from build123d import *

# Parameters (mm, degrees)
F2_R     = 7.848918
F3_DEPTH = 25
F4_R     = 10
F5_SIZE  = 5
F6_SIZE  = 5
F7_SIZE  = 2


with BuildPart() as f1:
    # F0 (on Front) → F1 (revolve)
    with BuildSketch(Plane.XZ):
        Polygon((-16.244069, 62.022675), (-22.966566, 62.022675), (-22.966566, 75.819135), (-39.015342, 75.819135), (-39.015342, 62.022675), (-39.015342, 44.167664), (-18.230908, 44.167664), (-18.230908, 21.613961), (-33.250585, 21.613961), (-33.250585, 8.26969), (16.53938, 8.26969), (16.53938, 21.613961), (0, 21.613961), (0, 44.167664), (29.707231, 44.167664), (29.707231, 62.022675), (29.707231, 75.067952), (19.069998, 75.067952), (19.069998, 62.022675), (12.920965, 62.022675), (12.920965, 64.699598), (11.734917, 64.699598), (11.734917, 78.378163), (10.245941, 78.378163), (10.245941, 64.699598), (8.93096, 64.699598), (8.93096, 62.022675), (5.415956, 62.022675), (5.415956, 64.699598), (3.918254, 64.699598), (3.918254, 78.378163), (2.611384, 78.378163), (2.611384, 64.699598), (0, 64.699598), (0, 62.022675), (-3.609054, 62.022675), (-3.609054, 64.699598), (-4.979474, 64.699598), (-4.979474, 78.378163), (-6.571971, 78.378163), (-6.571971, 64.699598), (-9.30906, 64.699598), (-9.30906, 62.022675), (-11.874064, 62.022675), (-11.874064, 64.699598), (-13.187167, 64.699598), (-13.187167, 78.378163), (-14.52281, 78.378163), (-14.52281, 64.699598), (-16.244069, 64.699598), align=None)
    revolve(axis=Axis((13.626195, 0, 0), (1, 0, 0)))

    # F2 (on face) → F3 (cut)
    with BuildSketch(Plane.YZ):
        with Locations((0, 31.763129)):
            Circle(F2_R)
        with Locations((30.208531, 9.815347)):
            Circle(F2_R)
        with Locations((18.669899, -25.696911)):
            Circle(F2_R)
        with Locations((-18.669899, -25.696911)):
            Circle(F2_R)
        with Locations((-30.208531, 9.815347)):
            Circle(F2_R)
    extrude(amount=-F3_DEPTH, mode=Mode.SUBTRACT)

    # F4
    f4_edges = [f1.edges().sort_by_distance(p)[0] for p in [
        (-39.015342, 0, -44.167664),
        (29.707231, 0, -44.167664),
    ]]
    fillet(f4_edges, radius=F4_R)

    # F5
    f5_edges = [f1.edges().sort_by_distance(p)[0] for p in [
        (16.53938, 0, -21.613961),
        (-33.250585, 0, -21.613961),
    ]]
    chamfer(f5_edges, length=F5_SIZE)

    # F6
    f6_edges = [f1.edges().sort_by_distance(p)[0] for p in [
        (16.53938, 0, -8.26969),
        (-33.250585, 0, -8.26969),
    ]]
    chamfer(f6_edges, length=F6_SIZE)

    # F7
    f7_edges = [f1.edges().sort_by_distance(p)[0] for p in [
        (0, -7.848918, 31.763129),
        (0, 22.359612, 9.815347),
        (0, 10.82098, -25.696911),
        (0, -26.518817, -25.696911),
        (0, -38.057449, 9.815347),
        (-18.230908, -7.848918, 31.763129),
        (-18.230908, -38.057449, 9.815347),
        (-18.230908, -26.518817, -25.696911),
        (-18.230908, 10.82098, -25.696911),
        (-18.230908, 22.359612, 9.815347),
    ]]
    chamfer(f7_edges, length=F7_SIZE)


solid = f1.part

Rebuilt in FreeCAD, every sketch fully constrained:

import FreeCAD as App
import Part
import Sketcher

V = App.Vector


def edges_at(feature, points):
    """Names of the edges that pass closest to the given points."""
    edges = feature.Shape.Edges
    near = lambda p: min(range(len(edges)), key=lambda i: edges[i].distToShape(Part.Vertex(*p))[0])
    return sorted({f"Edge{near(p) + 1}" for p in points})

doc = App.newDocument("Part")
params = doc.addObject("Spreadsheet::Sheet", "Params")
for row, (alias, value) in enumerate([
    ("revolution_angle", "360 deg"),
    ("pocket1_length", "25 mm"),
    ("fillet_radius", "10 mm"),
    ("chamfer_size", "5 mm"),
    ("chamfer2_size", "5 mm"),
    ("chamfer3_size", "2 mm"),
], start=1):
    params.set(f"A{row}", alias)
    params.set(f"B{row}", "=" + value)
    params.setAlias(f"B{row}", alias)

body = doc.addObject("PartDesign::Body", "Body")

# Sketch on XZ plane
sketch1 = doc.addObject("Sketcher::SketchObject", "Sketch")
body.addObject(sketch1)
sketch1.AttachmentSupport = (doc.XZ_Plane, [""])
sketch1.MapMode = "FlatFace"
sketch1.addGeometry(Part.LineSegment(V(-16.2, 62, 0), V(-23, 62, 0)), False)
sketch1.addGeometry(Part.LineSegment(V(-23, 62, 0), V(-23, 75.8, 0)), False)
sketch1.addGeometry(Part.LineSegment(V(-23, 75.8, 0), V(-39, 75.8, 0)), False)
sketch1.addGeometry(Part.LineSegment(V(-39, 75.8, 0), V(-39, 44.2, 0)), False)
sketch1.addGeometry(Part.LineSegment(V(-39, 44.2, 0), V(-18.2, 44.2, 0)), False)
sketch1.addGeometry(Part.LineSegment(V(-18.2, 44.2, 0), V(-18.2, 21.6, 0)), False)
sketch1.addGeometry(Part.LineSegment(V(-18.2, 21.6, 0), V(-33.3, 21.6, 0)), False)
sketch1.addGeometry(Part.LineSegment(V(-33.3, 21.6, 0), V(-33.3, 8.3, 0)), False)
sketch1.addGeometry(Part.LineSegment(V(-33.3, 8.3, 0), V(16.5, 8.3, 0)), False)
sketch1.addGeometry(Part.LineSegment(V(16.5, 8.3, 0), V(16.5, 21.6, 0)), False)
sketch1.addGeometry(Part.LineSegment(V(16.5, 21.6, 0), V(0, 21.6, 0)), False)
sketch1.addGeometry(Part.LineSegment(V(0, 21.6, 0), V(0, 44.2, 0)), False)
sketch1.addGeometry(Part.LineSegment(V(0, 44.2, 0), V(29.7, 44.2, 0)), False)
sketch1.addGeometry(Part.LineSegment(V(29.7, 44.2, 0), V(29.7, 75.1, 0)), False)
sketch1.addGeometry(Part.LineSegment(V(29.7, 75.1, 0), V(19.1, 75.1, 0)), False)
sketch1.addGeometry(Part.LineSegment(V(19.1, 75.1, 0), V(19.1, 62, 0)), False)
sketch1.addGeometry(Part.LineSegment(V(19.1, 62, 0), V(12.9, 62, 0)), False)
sketch1.addGeometry(Part.LineSegment(V(12.9, 62, 0), V(12.9, 64.7, 0)), False)
sketch1.addGeometry(Part.LineSegment(V(12.9, 64.7, 0), V(11.7, 64.7, 0)), False)
sketch1.addGeometry(Part.LineSegment(V(11.7, 64.7, 0), V(11.7, 78.4, 0)), False)
sketch1.addGeometry(Part.LineSegment(V(11.7, 78.4, 0), V(10.2, 78.4, 0)), False)
sketch1.addGeometry(Part.LineSegment(V(10.2, 78.4, 0), V(10.2, 64.7, 0)), False)
sketch1.addGeometry(Part.LineSegment(V(10.2, 64.7, 0), V(8.9, 64.7, 0)), False)
sketch1.addGeometry(Part.LineSegment(V(8.9, 64.7, 0), V(8.9, 62, 0)), False)
sketch1.addGeometry(Part.LineSegment(V(8.9, 62, 0), V(5.4, 62, 0)), False)
sketch1.addGeometry(Part.LineSegment(V(5.4, 62, 0), V(5.4, 64.7, 0)), False)
sketch1.addGeometry(Part.LineSegment(V(5.4, 64.7, 0), V(3.9, 64.7, 0)), False)
sketch1.addGeometry(Part.LineSegment(V(3.9, 64.7, 0), V(3.9, 78.4, 0)), False)
sketch1.addGeometry(Part.LineSegment(V(3.9, 78.4, 0), V(2.6, 78.4, 0)), False)
sketch1.addGeometry(Part.LineSegment(V(2.6, 78.4, 0), V(2.6, 64.7, 0)), False)
sketch1.addGeometry(Part.LineSegment(V(2.6, 64.7, 0), V(0, 64.7, 0)), False)
sketch1.addGeometry(Part.LineSegment(V(0, 64.7, 0), V(0, 62, 0)), False)
sketch1.addGeometry(Part.LineSegment(V(0, 62, 0), V(-3.6, 62, 0)), False)
sketch1.addGeometry(Part.LineSegment(V(-3.6, 62, 0), V(-3.6, 64.7, 0)), False)
sketch1.addGeometry(Part.LineSegment(V(-3.6, 64.7, 0), V(-5, 64.7, 0)), False)
sketch1.addGeometry(Part.LineSegment(V(-5, 64.7, 0), V(-5, 78.4, 0)), False)
sketch1.addGeometry(Part.LineSegment(V(-5, 78.4, 0), V(-6.6, 78.4, 0)), False)
sketch1.addGeometry(Part.LineSegment(V(-6.6, 78.4, 0), V(-6.6, 64.7, 0)), False)
sketch1.addGeometry(Part.LineSegment(V(-6.6, 64.7, 0), V(-9.3, 64.7, 0)), False)
sketch1.addGeometry(Part.LineSegment(V(-9.3, 64.7, 0), V(-9.3, 62, 0)), False)
sketch1.addGeometry(Part.LineSegment(V(-9.3, 62, 0), V(-11.9, 62, 0)), False)
sketch1.addGeometry(Part.LineSegment(V(-11.9, 62, 0), V(-11.9, 64.7, 0)), False)
sketch1.addGeometry(Part.LineSegment(V(-11.9, 64.7, 0), V(-13.2, 64.7, 0)), False)
sketch1.addGeometry(Part.LineSegment(V(-13.2, 64.7, 0), V(-13.2, 78.4, 0)), False)
sketch1.addGeometry(Part.LineSegment(V(-13.2, 78.4, 0), V(-14.5, 78.4, 0)), False)
sketch1.addGeometry(Part.LineSegment(V(-14.5, 78.4, 0), V(-14.5, 64.7, 0)), False)
sketch1.addGeometry(Part.LineSegment(V(-14.5, 64.7, 0), V(-16.2, 64.7, 0)), False)
sketch1.addGeometry(Part.LineSegment(V(-16.2, 64.7, 0), V(-16.2, 62, 0)), False)
sketch1.addConstraint(Sketcher.Constraint("Coincident", 0, 2, 1, 1))
sketch1.addConstraint(Sketcher.Constraint("Coincident", 1, 2, 2, 1))
sketch1.addConstraint(Sketcher.Constraint("Coincident", 2, 2, 3, 1))
sketch1.addConstraint(Sketcher.Constraint("Coincident", 3, 2, 4, 1))
sketch1.addConstraint(Sketcher.Constraint("Coincident", 4, 2, 5, 1))
sketch1.addConstraint(Sketcher.Constraint("Coincident", 5, 2, 6, 1))
sketch1.addConstraint(Sketcher.Constraint("Coincident", 6, 2, 7, 1))
sketch1.addConstraint(Sketcher.Constraint("Coincident", 7, 2, 8, 1))
sketch1.addConstraint(Sketcher.Constraint("Coincident", 8, 2, 9, 1))
sketch1.addConstraint(Sketcher.Constraint("Coincident", 9, 2, 10, 1))
sketch1.addConstraint(Sketcher.Constraint("Coincident", 10, 2, 11, 1))
sketch1.addConstraint(Sketcher.Constraint("Coincident", 11, 2, 12, 1))
sketch1.addConstraint(Sketcher.Constraint("Coincident", 12, 2, 13, 1))
sketch1.addConstraint(Sketcher.Constraint("Coincident", 13, 2, 14, 1))
sketch1.addConstraint(Sketcher.Constraint("Coincident", 14, 2, 15, 1))
sketch1.addConstraint(Sketcher.Constraint("Coincident", 15, 2, 16, 1))
sketch1.addConstraint(Sketcher.Constraint("Coincident", 16, 2, 17, 1))
sketch1.addConstraint(Sketcher.Constraint("Coincident", 17, 2, 18, 1))
sketch1.addConstraint(Sketcher.Constraint("Coincident", 18, 2, 19, 1))
sketch1.addConstraint(Sketcher.Constraint("Coincident", 19, 2, 20, 1))
sketch1.addConstraint(Sketcher.Constraint("Coincident", 20, 2, 21, 1))
sketch1.addConstraint(Sketcher.Constraint("Coincident", 21, 2, 22, 1))
sketch1.addConstraint(Sketcher.Constraint("Coincident", 22, 2, 23, 1))
sketch1.addConstraint(Sketcher.Constraint("Coincident", 23, 2, 24, 1))
sketch1.addConstraint(Sketcher.Constraint("Coincident", 24, 2, 25, 1))
sketch1.addConstraint(Sketcher.Constraint("Coincident", 25, 2, 26, 1))
sketch1.addConstraint(Sketcher.Constraint("Coincident", 26, 2, 27, 1))
sketch1.addConstraint(Sketcher.Constraint("Coincident", 27, 2, 28, 1))
sketch1.addConstraint(Sketcher.Constraint("Coincident", 28, 2, 29, 1))
sketch1.addConstraint(Sketcher.Constraint("Coincident", 29, 2, 30, 1))
sketch1.addConstraint(Sketcher.Constraint("Coincident", 30, 2, 31, 1))
sketch1.addConstraint(Sketcher.Constraint("Coincident", 31, 2, 32, 1))
sketch1.addConstraint(Sketcher.Constraint("Coincident", 32, 2, 33, 1))
sketch1.addConstraint(Sketcher.Constraint("Coincident", 33, 2, 34, 1))
sketch1.addConstraint(Sketcher.Constraint("Coincident", 34, 2, 35, 1))
sketch1.addConstraint(Sketcher.Constraint("Coincident", 35, 2, 36, 1))
sketch1.addConstraint(Sketcher.Constraint("Coincident", 36, 2, 37, 1))
sketch1.addConstraint(Sketcher.Constraint("Coincident", 37, 2, 38, 1))
sketch1.addConstraint(Sketcher.Constraint("Coincident", 38, 2, 39, 1))
sketch1.addConstraint(Sketcher.Constraint("Coincident", 39, 2, 40, 1))
sketch1.addConstraint(Sketcher.Constraint("Coincident", 40, 2, 41, 1))
sketch1.addConstraint(Sketcher.Constraint("Coincident", 41, 2, 42, 1))
sketch1.addConstraint(Sketcher.Constraint("Coincident", 42, 2, 43, 1))
sketch1.addConstraint(Sketcher.Constraint("Coincident", 43, 2, 44, 1))
sketch1.addConstraint(Sketcher.Constraint("Coincident", 44, 2, 45, 1))
sketch1.addConstraint(Sketcher.Constraint("Coincident", 45, 2, 46, 1))
sketch1.addConstraint(Sketcher.Constraint("Coincident", 46, 2, 47, 1))
sketch1.addConstraint(Sketcher.Constraint("Coincident", 47, 2, 0, 1))
sketch1.addConstraint(Sketcher.Constraint("Horizontal", 0))
sketch1.addConstraint(Sketcher.Constraint("Vertical", 1))
sketch1.addConstraint(Sketcher.Constraint("Horizontal", 2))
sketch1.addConstraint(Sketcher.Constraint("Vertical", 3))
sketch1.addConstraint(Sketcher.Constraint("Horizontal", 4))
sketch1.addConstraint(Sketcher.Constraint("Vertical", 5))
sketch1.addConstraint(Sketcher.Constraint("Horizontal", 6))
sketch1.addConstraint(Sketcher.Constraint("Vertical", 7))
sketch1.addConstraint(Sketcher.Constraint("Horizontal", 8))
sketch1.addConstraint(Sketcher.Constraint("Vertical", 9))
sketch1.addConstraint(Sketcher.Constraint("Horizontal", 10))
sketch1.addConstraint(Sketcher.Constraint("Vertical", 11))
sketch1.addConstraint(Sketcher.Constraint("Horizontal", 12))
sketch1.addConstraint(Sketcher.Constraint("Vertical", 13))
sketch1.addConstraint(Sketcher.Constraint("Horizontal", 14))
sketch1.addConstraint(Sketcher.Constraint("Vertical", 15))
sketch1.addConstraint(Sketcher.Constraint("Horizontal", 16))
sketch1.addConstraint(Sketcher.Constraint("Vertical", 17))
sketch1.addConstraint(Sketcher.Constraint("Horizontal", 18))
sketch1.addConstraint(Sketcher.Constraint("Vertical", 19))
sketch1.addConstraint(Sketcher.Constraint("Horizontal", 20))
sketch1.addConstraint(Sketcher.Constraint("Vertical", 21))
sketch1.addConstraint(Sketcher.Constraint("Horizontal", 22))
sketch1.addConstraint(Sketcher.Constraint("Vertical", 23))
sketch1.addConstraint(Sketcher.Constraint("Horizontal", 24))
sketch1.addConstraint(Sketcher.Constraint("Vertical", 25))
sketch1.addConstraint(Sketcher.Constraint("Horizontal", 26))
sketch1.addConstraint(Sketcher.Constraint("Vertical", 27))
sketch1.addConstraint(Sketcher.Constraint("Horizontal", 28))
sketch1.addConstraint(Sketcher.Constraint("Vertical", 29))
sketch1.addConstraint(Sketcher.Constraint("Horizontal", 30))
sketch1.addConstraint(Sketcher.Constraint("Vertical", 31))
sketch1.addConstraint(Sketcher.Constraint("Horizontal", 32))
sketch1.addConstraint(Sketcher.Constraint("Vertical", 33))
sketch1.addConstraint(Sketcher.Constraint("Horizontal", 34))
sketch1.addConstraint(Sketcher.Constraint("Vertical", 35))
sketch1.addConstraint(Sketcher.Constraint("Horizontal", 36))
sketch1.addConstraint(Sketcher.Constraint("Vertical", 37))
sketch1.addConstraint(Sketcher.Constraint("Horizontal", 38))
sketch1.addConstraint(Sketcher.Constraint("Vertical", 39))
sketch1.addConstraint(Sketcher.Constraint("Horizontal", 40))
sketch1.addConstraint(Sketcher.Constraint("Vertical", 41))
sketch1.addConstraint(Sketcher.Constraint("Horizontal", 42))
sketch1.addConstraint(Sketcher.Constraint("Vertical", 43))
sketch1.addConstraint(Sketcher.Constraint("Horizontal", 44))
sketch1.addConstraint(Sketcher.Constraint("Vertical", 45))
sketch1.addConstraint(Sketcher.Constraint("Horizontal", 46))
sketch1.addConstraint(Sketcher.Constraint("Vertical", 47))
sketch1.addConstraint(Sketcher.Constraint("PointOnObject", 10, 2, -2))
sketch1.addConstraint(Sketcher.Constraint("PointOnObject", 30, 2, -2))
sketch1.addConstraint(Sketcher.Constraint("Horizontal", 6, 2, 9, 2))
sketch1.addConstraint(Sketcher.Constraint("Horizontal", 4, 2, 11, 2))
sketch1.addConstraint(Sketcher.Constraint("Horizontal", 0, 2, 15, 2))
sketch1.addConstraint(Sketcher.Constraint("Horizontal", 18, 2, 21, 2))
sketch1.addConstraint(Sketcher.Constraint("Horizontal", 16, 2, 23, 2))
sketch1.addConstraint(Sketcher.Constraint("Horizontal", 22, 2, 25, 2))
sketch1.addConstraint(Sketcher.Constraint("Horizontal", 20, 2, 27, 2))
sketch1.addConstraint(Sketcher.Constraint("Horizontal", 26, 2, 29, 2))
sketch1.addConstraint(Sketcher.Constraint("Horizontal", 24, 2, 31, 2))
sketch1.addConstraint(Sketcher.Constraint("Horizontal", 30, 2, 33, 2))
sketch1.addConstraint(Sketcher.Constraint("Horizontal", 28, 2, 35, 2))
sketch1.addConstraint(Sketcher.Constraint("Horizontal", 34, 2, 37, 2))
sketch1.addConstraint(Sketcher.Constraint("Horizontal", 32, 2, 39, 2))
sketch1.addConstraint(Sketcher.Constraint("Horizontal", 38, 2, 41, 2))
sketch1.addConstraint(Sketcher.Constraint("Horizontal", 36, 2, 43, 2))
sketch1.addConstraint(Sketcher.Constraint("Horizontal", 42, 2, 45, 2))
sketch1.addConstraint(Sketcher.Constraint("DistanceX", 10, 2, 10, 1, 16.53938))
sketch1.addConstraint(Sketcher.Constraint("DistanceX", 12, 1, 12, 2, 29.707231))
sketch1.addConstraint(Sketcher.Constraint("DistanceX", 18, 2, 18, 1, 1.186048))
sketch1.addConstraint(Sketcher.Constraint("DistanceX", 22, 2, 22, 1, 1.314981))
sketch1.addConstraint(Sketcher.Constraint("DistanceX", 28, 2, 28, 1, 1.30687))
sketch1.addConstraint(Sketcher.Constraint("DistanceX", 34, 2, 34, 1, 1.37042))
sketch1.addConstraint(Sketcher.Constraint("DistanceX", 38, 2, 38, 1, 2.737089))
sketch1.addConstraint(Sketcher.Constraint("DistanceX", 46, 2, 46, 1, 1.721259))
sketch1.addConstraint(Sketcher.Constraint("DistanceY", 1, 1, 1, 2, 13.79646))
sketch1.addConstraint(Sketcher.Constraint("DistanceY", 3, 2, 3, 1, 31.651471))
sketch1.addConstraint(Sketcher.Constraint("DistanceY", 7, 2, 7, 1, 13.344271))
sketch1.addConstraint(Sketcher.Constraint("DistanceY", 13, 1, 13, 2, 30.900288))
sketch1.addConstraint(Sketcher.Constraint("DistanceX", 1, 2, 43, 2, 9.779399))
sketch1.addConstraint(Sketcher.Constraint("DistanceX", 46, 2, 42, 2, 3.056902))
sketch1.addConstraint(Sketcher.Constraint("DistanceX", 2, 2, 2, 1, 16.048776))
sketch1.addConstraint(Sketcher.Constraint("DistanceX", 4, 1, 4, 2, 20.784434))
sketch1.addConstraint(Sketcher.Constraint("DistanceX", 6, 2, 6, 1, 15.019677))
sketch1.addConstraint(Sketcher.Constraint("DistanceX", 8, 1, 8, 2, 49.789965))
sketch1.addConstraint(Sketcher.Constraint("DistanceX", 14, 2, 14, 1, 10.637233))
sketch1.addConstraint(Sketcher.Constraint("DistanceX", 16, 2, 16, 1, 6.149033))
sketch1.addConstraint(Sketcher.Constraint("DistanceX", 20, 2, 20, 1, 1.488976))
sketch1.addConstraint(Sketcher.Constraint("DistanceX", 24, 2, 24, 1, 3.515004))
sketch1.addConstraint(Sketcher.Constraint("DistanceX", 26, 2, 26, 1, 1.497702))
sketch1.addConstraint(Sketcher.Constraint("DistanceX", 32, 2, 32, 1, 3.609054))
sketch1.addConstraint(Sketcher.Constraint("DistanceX", 36, 2, 36, 1, 1.592497))
sketch1.addConstraint(Sketcher.Constraint("DistanceX", 40, 2, 40, 1, 2.565004))
sketch1.addConstraint(Sketcher.Constraint("DistanceY", 5, 2, 5, 1, 22.553703))
sketch1.addConstraint(Sketcher.Constraint("DistanceY", 17, 1, 17, 2, 2.676923))
sketch1.addConstraint(Sketcher.Constraint("DistanceY", 19, 1, 19, 2, 13.678565))
sketch1.addConstraint(Sketcher.Constraint("DistanceY", -1, 1, 5, 2, 21.613961))
revolution = doc.addObject("PartDesign::Revolution", "Revolution")
body.addObject(revolution)
revolution.Profile = sketch1
revolution.ReferenceAxis = (sketch1, ["H_Axis"])
revolution.setExpression("Angle", "Params.revolution_angle")

# Sketch on YZ plane
sketch2 = doc.addObject("Sketcher::SketchObject", "Sketch001")
body.addObject(sketch2)
sketch2.AttachmentSupport = (doc.YZ_Plane, [""])
sketch2.MapMode = "FlatFace"
sketch2.addGeometry(Part.Circle(V(0, 32, 0), V(0, 0, 1), 8), False)
sketch2.addGeometry(Part.Circle(V(30, 10, 0), V(0, 0, 1), 8), False)
sketch2.addGeometry(Part.Circle(V(19, -26, 0), V(0, 0, 1), 8), False)
sketch2.addGeometry(Part.Circle(V(-19, -26, 0), V(0, 0, 1), 8), False)
sketch2.addGeometry(Part.Circle(V(-30, 10, 0), V(0, 0, 1), 8), False)
sketch2.addConstraint(Sketcher.Constraint("Equal", 0, 1))
sketch2.addConstraint(Sketcher.Constraint("Equal", 1, 2))
sketch2.addConstraint(Sketcher.Constraint("Equal", 2, 3))
sketch2.addConstraint(Sketcher.Constraint("Equal", 3, 4))
sketch2.addConstraint(Sketcher.Constraint("Symmetric", 2, 3, 3, 3, -2))
sketch2.addConstraint(Sketcher.Constraint("Symmetric", 1, 3, 4, 3, -2))
sketch2.addConstraint(Sketcher.Constraint("PointOnObject", 0, 3, -2))
sketch2.addConstraint(Sketcher.Constraint("Diameter", 0, 15.697836))
sketch2.addConstraint(Sketcher.Constraint("DistanceX", -1, 1, 2, 3, 18.669899))
sketch2.addConstraint(Sketcher.Constraint("DistanceY", -1, 1, 0, 3, 31.763129))
sketch2.addConstraint(Sketcher.Constraint("DistanceX", -1, 1, 1, 3, 30.208531))
sketch2.addConstraint(Sketcher.Constraint("DistanceY", 2, 3, -1, 1, 25.696911))
sketch2.addConstraint(Sketcher.Constraint("DistanceY", 1, 3, 0, 3, 21.947782))
pocket1 = doc.addObject("PartDesign::Pocket", "Pocket")
body.addObject(pocket1)
pocket1.Profile = sketch2
pocket1.setExpression("Length", "Params.pocket1_length")
doc.recompute()

fillet = doc.addObject("PartDesign::Fillet", "Fillet")
body.addObject(fillet)
fillet.Base = (pocket1, edges_at(pocket1, [(-39.015, 0, -44.168), (29.707, 0, -44.168)]))
fillet.setExpression("Radius", "Params.fillet_radius")
doc.recompute()

chamfer = doc.addObject("PartDesign::Chamfer", "Chamfer")
body.addObject(chamfer)
chamfer.Base = (fillet, edges_at(fillet, [(16.539, 0, -21.614), (-33.251, 0, -21.614)]))
chamfer.setExpression("Size", "Params.chamfer_size")
doc.recompute()

chamfer2 = doc.addObject("PartDesign::Chamfer", "Chamfer001")
body.addObject(chamfer2)
chamfer2.Base = (chamfer, edges_at(chamfer, [(16.539, 0, -8.27), (-33.251, 0, -8.27)]))
chamfer2.setExpression("Size", "Params.chamfer2_size")
doc.recompute()

chamfer3 = doc.addObject("PartDesign::Chamfer", "Chamfer002")
body.addObject(chamfer3)
chamfer3.Base = (chamfer2, edges_at(chamfer2, [
    (0, -7.849, 31.763),
    (0, 22.36, 9.815),
    (0, 10.821, -25.697),
    (0, -26.519, -25.697),
    (0, -38.057, 9.815),
    (-18.231, -7.849, 31.763),
    (-18.231, -38.057, 9.815),
    (-18.231, -26.519, -25.697),
    (-18.231, 10.821, -25.697),
    (-18.231, 22.36, 9.815),
]))
chamfer3.setExpression("Size", "Params.chamfer3_size")

doc.recompute()
